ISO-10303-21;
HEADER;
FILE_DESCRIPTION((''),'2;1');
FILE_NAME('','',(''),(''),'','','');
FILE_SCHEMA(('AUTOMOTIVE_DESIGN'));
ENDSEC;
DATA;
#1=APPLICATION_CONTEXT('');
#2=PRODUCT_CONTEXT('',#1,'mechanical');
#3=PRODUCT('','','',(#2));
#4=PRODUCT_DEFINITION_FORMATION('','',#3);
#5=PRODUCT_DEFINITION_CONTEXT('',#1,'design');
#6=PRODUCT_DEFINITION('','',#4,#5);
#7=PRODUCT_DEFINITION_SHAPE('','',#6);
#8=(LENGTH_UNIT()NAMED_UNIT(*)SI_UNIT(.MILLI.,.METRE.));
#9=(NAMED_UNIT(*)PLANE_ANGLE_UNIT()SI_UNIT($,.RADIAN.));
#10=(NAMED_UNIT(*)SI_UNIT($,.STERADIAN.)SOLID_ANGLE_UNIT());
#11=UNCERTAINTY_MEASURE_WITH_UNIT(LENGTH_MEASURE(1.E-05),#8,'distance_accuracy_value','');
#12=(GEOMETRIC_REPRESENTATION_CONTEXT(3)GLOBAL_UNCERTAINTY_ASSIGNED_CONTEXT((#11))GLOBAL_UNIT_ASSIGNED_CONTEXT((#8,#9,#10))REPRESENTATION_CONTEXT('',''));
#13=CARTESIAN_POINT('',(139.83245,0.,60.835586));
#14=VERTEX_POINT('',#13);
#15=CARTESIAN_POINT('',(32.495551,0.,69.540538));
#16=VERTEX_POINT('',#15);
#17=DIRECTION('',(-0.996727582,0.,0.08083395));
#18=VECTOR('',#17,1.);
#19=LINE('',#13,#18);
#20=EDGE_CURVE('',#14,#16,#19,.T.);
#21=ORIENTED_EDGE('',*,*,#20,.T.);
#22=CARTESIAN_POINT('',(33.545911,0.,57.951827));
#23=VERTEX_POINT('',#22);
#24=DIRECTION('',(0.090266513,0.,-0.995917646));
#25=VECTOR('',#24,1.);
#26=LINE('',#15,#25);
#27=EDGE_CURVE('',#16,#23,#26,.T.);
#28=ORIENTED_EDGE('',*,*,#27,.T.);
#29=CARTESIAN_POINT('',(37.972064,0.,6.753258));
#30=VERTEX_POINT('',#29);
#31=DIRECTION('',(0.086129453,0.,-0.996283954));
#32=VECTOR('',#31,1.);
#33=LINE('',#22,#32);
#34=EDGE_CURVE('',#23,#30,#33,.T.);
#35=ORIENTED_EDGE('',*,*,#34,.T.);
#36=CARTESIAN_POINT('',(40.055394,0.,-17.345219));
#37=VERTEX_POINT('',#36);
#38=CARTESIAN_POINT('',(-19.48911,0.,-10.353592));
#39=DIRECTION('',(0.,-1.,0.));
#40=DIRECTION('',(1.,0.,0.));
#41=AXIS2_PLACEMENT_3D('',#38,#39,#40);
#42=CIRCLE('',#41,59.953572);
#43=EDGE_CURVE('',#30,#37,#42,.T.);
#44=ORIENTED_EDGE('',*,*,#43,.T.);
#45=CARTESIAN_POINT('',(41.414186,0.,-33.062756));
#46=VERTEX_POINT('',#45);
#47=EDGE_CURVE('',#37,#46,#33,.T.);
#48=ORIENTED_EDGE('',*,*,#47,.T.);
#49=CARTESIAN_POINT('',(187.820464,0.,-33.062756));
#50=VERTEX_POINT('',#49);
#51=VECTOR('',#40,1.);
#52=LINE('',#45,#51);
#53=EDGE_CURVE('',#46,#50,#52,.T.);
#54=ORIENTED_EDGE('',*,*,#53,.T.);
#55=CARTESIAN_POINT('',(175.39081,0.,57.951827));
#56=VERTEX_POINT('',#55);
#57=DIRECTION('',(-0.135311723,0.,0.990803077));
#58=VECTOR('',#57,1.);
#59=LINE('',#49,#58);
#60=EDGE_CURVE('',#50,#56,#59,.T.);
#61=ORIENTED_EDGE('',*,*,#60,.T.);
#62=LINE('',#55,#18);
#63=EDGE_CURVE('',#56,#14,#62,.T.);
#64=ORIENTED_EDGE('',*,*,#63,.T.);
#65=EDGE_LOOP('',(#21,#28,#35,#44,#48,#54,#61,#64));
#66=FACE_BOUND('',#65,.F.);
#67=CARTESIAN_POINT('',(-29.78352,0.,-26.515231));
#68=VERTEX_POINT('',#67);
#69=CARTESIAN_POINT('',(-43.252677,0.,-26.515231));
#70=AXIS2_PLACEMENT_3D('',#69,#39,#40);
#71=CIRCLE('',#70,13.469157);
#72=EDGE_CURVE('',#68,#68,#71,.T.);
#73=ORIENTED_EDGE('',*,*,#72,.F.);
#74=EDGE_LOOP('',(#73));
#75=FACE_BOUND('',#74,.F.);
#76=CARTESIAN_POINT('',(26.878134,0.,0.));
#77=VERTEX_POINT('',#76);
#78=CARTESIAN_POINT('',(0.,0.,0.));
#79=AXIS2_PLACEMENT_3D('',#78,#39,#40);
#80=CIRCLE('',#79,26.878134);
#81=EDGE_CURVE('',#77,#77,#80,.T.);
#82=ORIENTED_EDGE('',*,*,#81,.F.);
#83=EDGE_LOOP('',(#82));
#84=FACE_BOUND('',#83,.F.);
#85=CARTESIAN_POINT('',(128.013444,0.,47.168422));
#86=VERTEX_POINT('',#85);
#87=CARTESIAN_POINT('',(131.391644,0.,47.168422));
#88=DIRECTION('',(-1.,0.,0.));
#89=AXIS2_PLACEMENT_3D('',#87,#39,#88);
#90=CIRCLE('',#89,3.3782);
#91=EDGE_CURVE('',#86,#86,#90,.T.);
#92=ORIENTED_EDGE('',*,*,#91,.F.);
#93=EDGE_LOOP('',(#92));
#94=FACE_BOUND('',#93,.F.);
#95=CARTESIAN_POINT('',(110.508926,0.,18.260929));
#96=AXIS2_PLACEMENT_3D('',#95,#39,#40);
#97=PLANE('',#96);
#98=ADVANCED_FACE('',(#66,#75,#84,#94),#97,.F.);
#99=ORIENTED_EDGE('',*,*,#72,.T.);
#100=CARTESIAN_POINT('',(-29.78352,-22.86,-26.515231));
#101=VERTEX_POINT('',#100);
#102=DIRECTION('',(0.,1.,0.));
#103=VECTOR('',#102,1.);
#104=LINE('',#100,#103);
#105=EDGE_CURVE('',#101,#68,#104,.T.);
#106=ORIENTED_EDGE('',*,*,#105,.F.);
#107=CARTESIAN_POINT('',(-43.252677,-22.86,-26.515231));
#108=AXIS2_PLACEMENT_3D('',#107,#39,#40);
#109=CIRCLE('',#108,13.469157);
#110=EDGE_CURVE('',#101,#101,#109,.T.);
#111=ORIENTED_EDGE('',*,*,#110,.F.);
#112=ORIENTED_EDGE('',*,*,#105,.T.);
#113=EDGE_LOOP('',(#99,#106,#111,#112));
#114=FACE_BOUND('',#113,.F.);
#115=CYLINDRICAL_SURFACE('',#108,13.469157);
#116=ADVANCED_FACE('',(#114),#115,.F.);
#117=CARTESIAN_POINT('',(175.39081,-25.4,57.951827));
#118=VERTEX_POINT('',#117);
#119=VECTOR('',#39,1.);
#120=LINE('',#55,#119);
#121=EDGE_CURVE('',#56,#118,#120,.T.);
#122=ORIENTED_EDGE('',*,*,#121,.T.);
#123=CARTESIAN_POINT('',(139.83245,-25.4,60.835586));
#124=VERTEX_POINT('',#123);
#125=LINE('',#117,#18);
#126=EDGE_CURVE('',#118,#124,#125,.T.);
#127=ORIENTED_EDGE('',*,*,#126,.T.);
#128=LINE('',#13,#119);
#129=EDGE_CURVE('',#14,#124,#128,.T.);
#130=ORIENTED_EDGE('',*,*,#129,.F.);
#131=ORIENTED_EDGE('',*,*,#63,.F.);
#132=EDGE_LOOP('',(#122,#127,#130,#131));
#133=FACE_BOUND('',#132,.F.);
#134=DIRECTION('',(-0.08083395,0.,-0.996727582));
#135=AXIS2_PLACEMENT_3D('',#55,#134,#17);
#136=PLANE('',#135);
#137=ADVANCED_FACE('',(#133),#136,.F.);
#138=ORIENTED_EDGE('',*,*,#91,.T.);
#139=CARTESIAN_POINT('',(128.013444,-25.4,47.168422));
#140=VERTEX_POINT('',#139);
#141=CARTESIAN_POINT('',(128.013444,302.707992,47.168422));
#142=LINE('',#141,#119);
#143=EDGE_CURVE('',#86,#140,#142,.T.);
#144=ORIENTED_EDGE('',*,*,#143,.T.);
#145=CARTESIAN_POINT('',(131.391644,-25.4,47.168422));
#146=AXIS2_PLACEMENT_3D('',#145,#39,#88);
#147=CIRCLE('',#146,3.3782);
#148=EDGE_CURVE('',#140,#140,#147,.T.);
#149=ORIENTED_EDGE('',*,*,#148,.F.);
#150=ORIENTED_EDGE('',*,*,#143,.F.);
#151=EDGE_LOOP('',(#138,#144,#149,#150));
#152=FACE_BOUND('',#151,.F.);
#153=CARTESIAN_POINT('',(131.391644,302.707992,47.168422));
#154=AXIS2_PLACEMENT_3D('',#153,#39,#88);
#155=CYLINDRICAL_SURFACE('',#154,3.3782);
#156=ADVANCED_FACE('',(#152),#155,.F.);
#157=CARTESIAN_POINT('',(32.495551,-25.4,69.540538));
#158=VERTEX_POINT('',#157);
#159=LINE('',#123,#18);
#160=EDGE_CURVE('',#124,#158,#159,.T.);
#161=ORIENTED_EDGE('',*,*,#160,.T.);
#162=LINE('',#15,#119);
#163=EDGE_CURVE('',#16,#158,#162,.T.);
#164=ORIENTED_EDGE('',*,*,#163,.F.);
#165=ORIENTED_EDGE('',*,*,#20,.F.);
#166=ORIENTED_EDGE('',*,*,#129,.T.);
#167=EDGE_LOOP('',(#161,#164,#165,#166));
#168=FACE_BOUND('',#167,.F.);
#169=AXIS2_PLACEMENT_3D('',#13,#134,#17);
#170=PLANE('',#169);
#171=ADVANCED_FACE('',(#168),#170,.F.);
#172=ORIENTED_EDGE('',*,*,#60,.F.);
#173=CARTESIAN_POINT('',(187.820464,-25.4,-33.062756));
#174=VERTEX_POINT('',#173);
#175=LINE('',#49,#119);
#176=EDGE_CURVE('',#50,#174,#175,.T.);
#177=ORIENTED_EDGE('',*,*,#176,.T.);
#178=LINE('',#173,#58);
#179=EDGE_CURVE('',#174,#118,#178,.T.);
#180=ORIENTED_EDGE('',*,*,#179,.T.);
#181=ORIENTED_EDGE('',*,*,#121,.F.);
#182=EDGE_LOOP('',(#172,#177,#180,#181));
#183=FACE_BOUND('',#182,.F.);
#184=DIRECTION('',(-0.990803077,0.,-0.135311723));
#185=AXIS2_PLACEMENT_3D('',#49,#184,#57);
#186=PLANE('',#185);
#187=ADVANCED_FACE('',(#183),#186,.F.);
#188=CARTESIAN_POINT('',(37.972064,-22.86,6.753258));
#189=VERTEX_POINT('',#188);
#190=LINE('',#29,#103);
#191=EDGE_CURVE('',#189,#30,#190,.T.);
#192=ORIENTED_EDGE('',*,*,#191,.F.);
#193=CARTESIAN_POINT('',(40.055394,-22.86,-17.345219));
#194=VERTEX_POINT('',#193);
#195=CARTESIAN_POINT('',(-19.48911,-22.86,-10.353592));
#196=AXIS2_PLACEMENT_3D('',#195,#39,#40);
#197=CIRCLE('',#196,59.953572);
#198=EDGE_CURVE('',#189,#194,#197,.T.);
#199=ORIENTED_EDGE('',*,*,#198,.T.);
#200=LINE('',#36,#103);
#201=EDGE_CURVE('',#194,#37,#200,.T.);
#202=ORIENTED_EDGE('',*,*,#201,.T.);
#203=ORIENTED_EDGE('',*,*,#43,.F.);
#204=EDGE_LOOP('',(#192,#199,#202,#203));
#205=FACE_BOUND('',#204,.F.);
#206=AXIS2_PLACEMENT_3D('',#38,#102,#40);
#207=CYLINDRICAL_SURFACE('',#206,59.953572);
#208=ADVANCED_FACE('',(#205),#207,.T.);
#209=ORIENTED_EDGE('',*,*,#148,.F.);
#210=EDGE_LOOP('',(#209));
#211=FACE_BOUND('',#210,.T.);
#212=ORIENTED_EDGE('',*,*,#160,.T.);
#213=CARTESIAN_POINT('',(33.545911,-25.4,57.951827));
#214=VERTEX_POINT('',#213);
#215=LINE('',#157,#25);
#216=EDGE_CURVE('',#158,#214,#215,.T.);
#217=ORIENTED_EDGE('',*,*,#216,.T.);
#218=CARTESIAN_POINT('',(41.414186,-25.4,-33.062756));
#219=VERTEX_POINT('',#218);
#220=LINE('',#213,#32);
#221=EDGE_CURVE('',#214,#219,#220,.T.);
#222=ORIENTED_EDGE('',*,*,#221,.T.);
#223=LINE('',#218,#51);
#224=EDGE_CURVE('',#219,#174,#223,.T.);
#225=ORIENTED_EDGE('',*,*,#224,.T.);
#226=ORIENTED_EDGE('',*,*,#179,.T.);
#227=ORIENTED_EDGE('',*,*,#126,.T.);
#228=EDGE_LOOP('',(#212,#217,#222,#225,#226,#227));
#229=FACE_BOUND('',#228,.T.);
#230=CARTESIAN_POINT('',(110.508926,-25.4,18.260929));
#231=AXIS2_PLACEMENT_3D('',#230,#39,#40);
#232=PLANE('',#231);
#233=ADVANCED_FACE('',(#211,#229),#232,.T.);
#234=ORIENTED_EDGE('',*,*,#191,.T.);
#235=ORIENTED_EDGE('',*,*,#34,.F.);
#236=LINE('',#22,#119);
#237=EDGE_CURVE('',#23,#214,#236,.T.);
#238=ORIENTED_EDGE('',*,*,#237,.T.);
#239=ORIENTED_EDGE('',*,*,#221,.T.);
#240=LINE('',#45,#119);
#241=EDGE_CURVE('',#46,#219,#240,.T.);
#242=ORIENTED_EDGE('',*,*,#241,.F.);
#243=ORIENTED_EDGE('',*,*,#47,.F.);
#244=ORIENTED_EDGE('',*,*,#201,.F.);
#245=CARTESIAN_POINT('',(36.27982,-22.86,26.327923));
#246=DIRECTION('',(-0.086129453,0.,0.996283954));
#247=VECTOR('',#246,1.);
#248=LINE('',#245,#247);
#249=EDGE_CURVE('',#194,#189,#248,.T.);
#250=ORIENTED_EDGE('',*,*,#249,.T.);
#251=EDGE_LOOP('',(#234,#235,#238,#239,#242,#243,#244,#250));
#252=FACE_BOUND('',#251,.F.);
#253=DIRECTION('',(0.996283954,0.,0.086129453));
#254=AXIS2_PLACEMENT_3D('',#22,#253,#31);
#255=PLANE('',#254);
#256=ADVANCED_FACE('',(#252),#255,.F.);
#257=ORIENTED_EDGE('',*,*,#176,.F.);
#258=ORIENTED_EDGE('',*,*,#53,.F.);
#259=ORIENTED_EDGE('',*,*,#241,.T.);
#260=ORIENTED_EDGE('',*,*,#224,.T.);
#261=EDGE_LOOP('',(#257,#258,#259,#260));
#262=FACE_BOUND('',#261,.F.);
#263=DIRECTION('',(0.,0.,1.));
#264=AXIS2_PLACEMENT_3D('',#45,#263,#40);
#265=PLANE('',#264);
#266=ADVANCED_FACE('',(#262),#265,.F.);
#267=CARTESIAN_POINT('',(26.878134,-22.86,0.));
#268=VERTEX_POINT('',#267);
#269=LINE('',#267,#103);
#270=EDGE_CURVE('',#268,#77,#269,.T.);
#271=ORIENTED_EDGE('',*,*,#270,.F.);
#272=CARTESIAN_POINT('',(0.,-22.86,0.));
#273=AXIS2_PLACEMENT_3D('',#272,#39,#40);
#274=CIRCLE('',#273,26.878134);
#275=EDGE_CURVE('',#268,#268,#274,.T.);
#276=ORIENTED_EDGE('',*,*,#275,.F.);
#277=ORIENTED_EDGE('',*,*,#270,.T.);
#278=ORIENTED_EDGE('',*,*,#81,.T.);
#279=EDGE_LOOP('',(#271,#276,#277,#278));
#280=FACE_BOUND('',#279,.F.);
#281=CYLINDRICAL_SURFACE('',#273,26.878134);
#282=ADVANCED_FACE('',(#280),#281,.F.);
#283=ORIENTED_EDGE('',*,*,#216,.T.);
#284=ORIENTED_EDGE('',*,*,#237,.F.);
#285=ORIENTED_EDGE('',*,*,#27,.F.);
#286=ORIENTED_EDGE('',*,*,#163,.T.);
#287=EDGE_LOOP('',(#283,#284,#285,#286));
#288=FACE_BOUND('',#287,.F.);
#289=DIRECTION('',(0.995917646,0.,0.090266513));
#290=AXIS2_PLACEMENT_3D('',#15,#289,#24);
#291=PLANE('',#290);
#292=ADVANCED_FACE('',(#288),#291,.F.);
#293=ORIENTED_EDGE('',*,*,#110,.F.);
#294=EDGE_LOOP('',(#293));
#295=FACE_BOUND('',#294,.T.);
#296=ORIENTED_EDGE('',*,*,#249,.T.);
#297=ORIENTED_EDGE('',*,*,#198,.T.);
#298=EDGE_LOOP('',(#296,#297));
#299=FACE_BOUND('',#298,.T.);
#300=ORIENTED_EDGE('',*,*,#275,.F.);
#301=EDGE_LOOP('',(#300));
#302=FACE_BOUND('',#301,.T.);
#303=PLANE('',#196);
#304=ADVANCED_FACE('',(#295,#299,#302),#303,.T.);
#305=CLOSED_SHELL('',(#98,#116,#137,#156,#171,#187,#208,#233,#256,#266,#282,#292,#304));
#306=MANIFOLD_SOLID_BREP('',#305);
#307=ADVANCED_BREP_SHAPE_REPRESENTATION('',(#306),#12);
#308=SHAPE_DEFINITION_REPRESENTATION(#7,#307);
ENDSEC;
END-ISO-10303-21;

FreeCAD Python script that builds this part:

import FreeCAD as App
import Part
import Sketcher
Q = App.Units.Quantity

doc = App.newDocument("Part")
body = doc.addObject("PartDesign::Body", "Body")

# Sketch on XZ plane
sketch1 = body.newObject("Sketcher::SketchObject", "Sketch")
sketch1.AttachmentSupport = (doc.getObject("XZ_Plane"), [""])
sketch1.MapMode = "FlatFace"
sketch1.addGeometry(Part.Circle(App.Vector(-19.48911, -10.353592, 0), App.Vector(0, 0, 1), 59.953572), False)
sketch1.addConstraint([
    Sketcher.Constraint("Diameter", 0, 119.907143),
    Sketcher.Constraint("DistanceX", 0, 3, -1, 1, 19.48911),
    Sketcher.Constraint("DistanceY", 0, 3, -1, 1, 10.353592),
])
pad1 = body.newObject("PartDesign::Pad", "Pad")
pad1.Profile = sketch1
pad1.Length = Q("0.9 in")

# Sketch on XZ plane
sketch2 = body.newObject("Sketcher::SketchObject", "Sketch001")
sketch2.AttachmentSupport = (doc.getObject("XZ_Plane"), [""])
sketch2.MapMode = "FlatFace"
sketch2.AttachmentOffset = App.Placement(App.Vector(0, 0, 0.9 * 25.4), App.Rotation())
sketch2.addGeometry(Part.Circle(App.Vector(0, 0, 0), App.Vector(0, 0, 1), 26.878134), False)
sketch2.addConstraint([
    Sketcher.Constraint("Coincident", 0, 3, -1, 1),
    Sketcher.Constraint("Diameter", 0, 53.756268),
])
pocket1 = body.newObject("PartDesign::Pocket", "Pocket")
pocket1.Profile = sketch2
pocket1.Type = "ThroughAll"

# Sketch on XZ plane
sketch3 = body.newObject("Sketcher::SketchObject", "Sketch002")
sketch3.AttachmentSupport = (doc.getObject("XZ_Plane"), [""])
sketch3.MapMode = "FlatFace"
sketch3.AttachmentOffset = App.Placement(App.Vector(0, 0, 0.9 * 25.4), App.Rotation())
sketch3.addGeometry(Part.Circle(App.Vector(-43.252677, -26.515231, 0), App.Vector(0, 0, 1), 13.469157), False)
sketch3.addConstraint([
    Sketcher.Constraint("Diameter", 0, 26.938314),
    Sketcher.Constraint("DistanceY", 0, 3, -1, 1, 26.515231),
    Sketcher.Constraint("DistanceX", 0, 3, -1, 1, 43.252677),
])
pocket2 = body.newObject("PartDesign::Pocket", "Pocket001")
pocket2.Profile = sketch3
pocket2.Type = "ThroughAll"

# Sketch on XZ plane
sketch4 = body.newObject("Sketcher::SketchObject", "Sketch003")
sketch4.AttachmentSupport = (doc.getObject("XZ_Plane"), [""])
sketch4.MapMode = "FlatFace"
sketch4.addGeometry([
    Part.LineSegment(App.Vector(32.495551, 69.540538, 0), App.Vector(33.545911, 57.951827, 0)),  # 0
    Part.LineSegment(App.Vector(33.545911, 57.951827, 0), App.Vector(41.414186, -33.062756, 0)),  # 1
    Part.LineSegment(App.Vector(41.414186, -33.062756, 0), App.Vector(187.820464, -33.062756, 0)),  # 2
    Part.LineSegment(App.Vector(187.820464, -33.062756, 0), App.Vector(175.39081, 57.951827, 0)),  # 3
    Part.LineSegment(App.Vector(175.39081, 57.951827, 0), App.Vector(139.83245, 60.835586, 0)),  # 4
    Part.LineSegment(App.Vector(139.83245, 60.835586, 0), App.Vector(32.495551, 69.540538, 0)),  # 5
], False)
sketch4.addConstraint([
    Sketcher.Constraint("Coincident", 0, 2, 1, 1),
    Sketcher.Constraint("Coincident", 1, 2, 2, 1),
    Sketcher.Constraint("Coincident", 2, 2, 3, 1),
    Sketcher.Constraint("Coincident", 3, 2, 4, 1),
    Sketcher.Constraint("Coincident", 4, 2, 5, 1),
    Sketcher.Constraint("Coincident", 5, 2, 0, 1),
    Sketcher.Constraint("Horizontal", 2),
    Sketcher.Constraint("Parallel", 4, 5),
    Sketcher.Constraint("Horizontal", 0, 2, 3, 2),
    Sketcher.Constraint("DistanceX", 2, 1, 2, 2, 146.406278),
    Sketcher.Constraint("DistanceX", 0, 2, 3, 2, 141.844898),
    Sketcher.Constraint("DistanceX", 5, 2, 4, 2, 107.336899),
    Sketcher.Constraint("Distance", 1, 91.354059),
    Sketcher.Constraint("DistanceX", -1, 1, 0, 2, 33.545911),
    Sketcher.Constraint("DistanceX", -1, 1, 4, 2, 139.83245),
    Sketcher.Constraint("DistanceY", 3, 2, 4, 2, 2.88376),
    Sketcher.Constraint("Distance", 3, 91.859407),
    Sketcher.Constraint("DistanceY", -1, 1, 0, 2, 57.951827),
])
pad2 = body.newObject("PartDesign::Pad", "Pad001")
pad2.Profile = sketch4
pad2.Length = Q("1 in")

# Sketch on XZ plane
sketch5 = body.newObject("Sketcher::SketchObject", "Sketch004")
sketch5.AttachmentSupport = (doc.getObject("XZ_Plane"), [""])
sketch5.MapMode = "FlatFace"
sketch5.addGeometry(Part.Circle(App.Vector(131.391644, 47.168422, 0), App.Vector(0, 0, 1), 3.3782), False)
sketch5.addConstraint([
    Sketcher.Constraint("Diameter", 0, Q("0.266 in")),
    Sketcher.Constraint("DistanceX", -1, 1, 0, 3, 131.391644),
    Sketcher.Constraint("DistanceY", -1, 1, 0, 3, 47.168422),
])
doc.recompute()
hole = body.newObject("PartDesign::Hole", "Hole")
hole.Profile = sketch5
hole.ThreadType = "None"
hole.Diameter = Q("0.266 in")
hole.DepthType = "ThroughAll"
hole.Reversed = True

doc.recompute()
